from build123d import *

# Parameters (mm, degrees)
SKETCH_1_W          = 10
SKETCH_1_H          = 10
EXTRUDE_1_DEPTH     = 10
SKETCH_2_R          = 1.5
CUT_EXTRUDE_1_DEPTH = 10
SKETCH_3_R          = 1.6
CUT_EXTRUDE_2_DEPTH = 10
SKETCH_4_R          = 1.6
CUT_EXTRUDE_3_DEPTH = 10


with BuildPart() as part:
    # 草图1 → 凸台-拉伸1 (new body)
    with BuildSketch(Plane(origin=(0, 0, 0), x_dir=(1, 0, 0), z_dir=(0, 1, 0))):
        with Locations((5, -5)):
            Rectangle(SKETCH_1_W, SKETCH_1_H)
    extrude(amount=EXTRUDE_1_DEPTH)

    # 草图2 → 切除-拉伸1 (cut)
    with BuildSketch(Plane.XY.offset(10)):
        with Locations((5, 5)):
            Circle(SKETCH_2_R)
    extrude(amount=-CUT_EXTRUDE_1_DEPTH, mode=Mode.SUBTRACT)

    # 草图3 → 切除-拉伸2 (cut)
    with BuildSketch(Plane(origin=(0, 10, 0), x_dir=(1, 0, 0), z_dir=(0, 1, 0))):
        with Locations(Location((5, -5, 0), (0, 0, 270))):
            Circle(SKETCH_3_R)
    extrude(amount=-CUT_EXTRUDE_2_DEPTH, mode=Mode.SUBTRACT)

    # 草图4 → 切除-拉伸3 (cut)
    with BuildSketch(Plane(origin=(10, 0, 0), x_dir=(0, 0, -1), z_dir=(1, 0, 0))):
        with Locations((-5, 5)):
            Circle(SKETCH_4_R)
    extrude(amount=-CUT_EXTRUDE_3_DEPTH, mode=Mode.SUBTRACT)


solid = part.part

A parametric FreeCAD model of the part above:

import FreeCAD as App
import Part
import Sketcher

V = App.Vector

doc = App.newDocument("Part")
body = doc.addObject("PartDesign::Body", "Body")

sketch1 = doc.addObject("Sketcher::SketchObject", "Sketch")
body.addObject(sketch1)
sketch1.AttachmentSupport = (doc.XZ_Plane, [""])
sketch1.MapMode = "FlatFace"
sketch1.addGeometry([
    Part.LineSegment(V(0, 0, 0), V(0, 10, 0)),
    Part.LineSegment(V(0, 10, 0), V(10, 10, 0)),
    Part.LineSegment(V(10, 10, 0), V(10, 0, 0)),
    Part.LineSegment(V(10, 0, 0), V(0, 0, 0)),
], False)
sketch1.addConstraint([
    Sketcher.Constraint("Coincident", 0, 2, 1, 1),
    Sketcher.Constraint("Coincident", 1, 2, 2, 1),
    Sketcher.Constraint("Coincident", 2, 2, 3, 1),
    Sketcher.Constraint("Coincident", 3, 2, 0, 1),
    Sketcher.Constraint("Vertical", 0),
    Sketcher.Constraint("Horizontal", 1),
    Sketcher.Constraint("Vertical", 2),
    Sketcher.Constraint("Horizontal", 3),
    Sketcher.Constraint("Coincident", 3, 2, -1, 1),
    Sketcher.Constraint("Equal", 3, 0),
    Sketcher.Constraint("DistanceX", 1, 1, 1, 2, 10.0),
])
pad1 = doc.addObject("PartDesign::Pad", "Pad")
body.addObject(pad1)
pad1.Profile = sketch1
pad1.Length = 10
pad1.Reversed = True

sketch2 = doc.addObject("Sketcher::SketchObject", "Sketch001")
body.addObject(sketch2)
sketch2.AttachmentSupport = (doc.XY_Plane, [""])
sketch2.MapMode = "FlatFace"
sketch2.AttachmentOffset = App.Placement(V(0, 0, 10), App.Rotation())
sketch2.addGeometry(Part.Circle(V(5, 5, 0), V(0, 0, 1), 1.5), False)
sketch2.addConstraint([
    Sketcher.Constraint("Diameter", 0, 3.0),
    Sketcher.Constraint("DistanceX", -1, 1, 0, 3, 5.0),
    Sketcher.Constraint("DistanceY", -1, 1, 0, 3, 5.0),
])
pocket1 = doc.addObject("PartDesign::Pocket", "Pocket")
body.addObject(pocket1)
pocket1.Profile = sketch2
pocket1.Length = 10

sketch3 = doc.addObject("Sketcher::SketchObject", "Sketch002")
body.addObject(sketch3)
sketch3.AttachmentSupport = (doc.XZ_Plane, [""])
sketch3.MapMode = "FlatFace"
sketch3.AttachmentOffset = App.Placement(V(0, 0, -10), App.Rotation())
sketch3.addGeometry(Part.Circle(V(5, 5, 0), V(0, 0, 1), 1.6), False)
sketch3.addConstraint([
    Sketcher.Constraint("Diameter", 0, 3.2),
    Sketcher.Constraint("DistanceX", -1, 1, 0, 3, 5.0),
    Sketcher.Constraint("DistanceY", -1, 1, 0, 3, 5.0),
])
pocket2 = doc.addObject("PartDesign::Pocket", "Pocket001")
body.addObject(pocket2)
pocket2.Profile = sketch3
pocket2.Length = 10
pocket2.Reversed = True

sketch4 = doc.addObject("Sketcher::SketchObject", "Sketch003")
body.addObject(sketch4)
sketch4.AttachmentSupport = (doc.YZ_Plane, [""])
sketch4.MapMode = "FlatFace"
sketch4.AttachmentOffset = App.Placement(V(0, 0, 10), App.Rotation())
sketch4.addGeometry(Part.Circle(V(5, 5, 0), V(0, 0, 1), 1.6), False)
sketch4.addConstraint([
    Sketcher.Constraint("Diameter", 0, 3.2),
    Sketcher.Constraint("DistanceX", -1, 1, 0, 3, 5.0),
    Sketcher.Constraint("DistanceY", -1, 1, 0, 3, 5.0),
])
pocket3 = doc.addObject("PartDesign::Pocket", "Pocket002")
body.addObject(pocket3)
pocket3.Profile = sketch4
pocket3.Length = 10

doc.recompute()
